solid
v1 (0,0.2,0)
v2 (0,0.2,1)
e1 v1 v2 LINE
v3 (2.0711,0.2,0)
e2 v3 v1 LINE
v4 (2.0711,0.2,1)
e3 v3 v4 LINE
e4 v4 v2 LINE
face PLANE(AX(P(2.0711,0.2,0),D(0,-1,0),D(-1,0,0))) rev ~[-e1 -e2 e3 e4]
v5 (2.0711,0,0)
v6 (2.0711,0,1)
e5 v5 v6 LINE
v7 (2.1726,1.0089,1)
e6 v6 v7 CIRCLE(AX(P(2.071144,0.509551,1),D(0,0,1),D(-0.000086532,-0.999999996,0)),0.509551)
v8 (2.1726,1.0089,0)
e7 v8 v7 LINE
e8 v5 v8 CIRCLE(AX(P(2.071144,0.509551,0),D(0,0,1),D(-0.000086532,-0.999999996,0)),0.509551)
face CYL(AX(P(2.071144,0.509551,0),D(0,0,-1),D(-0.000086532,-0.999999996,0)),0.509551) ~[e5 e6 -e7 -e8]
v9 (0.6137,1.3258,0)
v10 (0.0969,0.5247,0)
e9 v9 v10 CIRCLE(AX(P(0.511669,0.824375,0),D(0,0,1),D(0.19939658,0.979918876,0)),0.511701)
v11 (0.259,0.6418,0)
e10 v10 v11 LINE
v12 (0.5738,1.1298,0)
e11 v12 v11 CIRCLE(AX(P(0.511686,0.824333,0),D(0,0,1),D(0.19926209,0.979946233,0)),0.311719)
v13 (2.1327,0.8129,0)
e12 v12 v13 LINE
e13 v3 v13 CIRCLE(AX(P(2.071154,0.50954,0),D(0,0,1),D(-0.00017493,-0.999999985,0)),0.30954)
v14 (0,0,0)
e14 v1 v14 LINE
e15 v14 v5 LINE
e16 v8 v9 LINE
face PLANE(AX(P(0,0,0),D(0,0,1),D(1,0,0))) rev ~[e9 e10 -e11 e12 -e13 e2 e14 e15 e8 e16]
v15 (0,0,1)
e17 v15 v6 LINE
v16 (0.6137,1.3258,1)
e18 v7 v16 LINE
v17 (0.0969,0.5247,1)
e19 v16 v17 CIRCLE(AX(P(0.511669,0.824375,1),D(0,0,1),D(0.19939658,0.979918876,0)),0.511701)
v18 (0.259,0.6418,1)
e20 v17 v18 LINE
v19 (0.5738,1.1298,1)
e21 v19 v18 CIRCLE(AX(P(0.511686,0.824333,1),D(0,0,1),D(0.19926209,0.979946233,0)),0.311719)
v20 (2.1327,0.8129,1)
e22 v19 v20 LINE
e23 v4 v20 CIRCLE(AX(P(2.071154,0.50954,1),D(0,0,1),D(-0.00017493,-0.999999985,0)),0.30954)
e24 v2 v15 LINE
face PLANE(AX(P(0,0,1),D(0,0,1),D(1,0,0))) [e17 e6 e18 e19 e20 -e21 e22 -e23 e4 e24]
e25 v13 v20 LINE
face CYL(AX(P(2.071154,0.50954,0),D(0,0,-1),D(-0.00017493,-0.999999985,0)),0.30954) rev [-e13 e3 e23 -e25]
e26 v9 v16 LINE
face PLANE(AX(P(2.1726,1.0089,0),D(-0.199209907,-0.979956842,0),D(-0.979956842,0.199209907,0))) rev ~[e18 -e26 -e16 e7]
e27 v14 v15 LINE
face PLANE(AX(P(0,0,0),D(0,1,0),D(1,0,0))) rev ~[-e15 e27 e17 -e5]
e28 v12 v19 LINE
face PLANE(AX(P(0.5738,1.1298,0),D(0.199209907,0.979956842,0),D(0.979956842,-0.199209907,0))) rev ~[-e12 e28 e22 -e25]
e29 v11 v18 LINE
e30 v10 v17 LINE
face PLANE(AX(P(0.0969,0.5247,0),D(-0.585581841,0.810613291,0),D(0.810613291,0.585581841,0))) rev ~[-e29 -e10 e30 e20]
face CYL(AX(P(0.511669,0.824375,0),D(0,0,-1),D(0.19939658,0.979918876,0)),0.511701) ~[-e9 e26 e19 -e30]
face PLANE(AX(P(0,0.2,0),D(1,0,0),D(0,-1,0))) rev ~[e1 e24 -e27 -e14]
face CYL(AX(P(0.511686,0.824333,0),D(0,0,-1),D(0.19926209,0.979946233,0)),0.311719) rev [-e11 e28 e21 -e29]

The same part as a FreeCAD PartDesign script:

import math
import FreeCAD as App
import Part
import Sketcher
from FreeCAD import Vector
Q = App.Units.Quantity

doc = App.newDocument("Part")
body = doc.addObject("PartDesign::Body", "Body")

# Sketch on XY plane
sketch1 = body.newObject("Sketcher::SketchObject", "Sketch")
sketch1.AttachmentSupport = (doc.getObject("XY_Plane"), [""])
sketch1.MapMode = "FlatFace"
sketch1.addGeometry([
    Part.LineSegment(Vector(0, 0.2, 0), Vector(0, 0, 0)),  # 0
    Part.LineSegment(Vector(0, 0, 0), Vector(2.07, 0, 0)),  # 1
    Part.ArcOfCircle(Part.Circle(Vector(2.07, 0.51, 0), Vector(0, 0, 1), 0.51), math.radians(-90), math.radians(79)),  # 2
    Part.LineSegment(Vector(2.17, 1.01, 0), Vector(0.61, 1.33, 0)),  # 3
    Part.ArcOfCircle(Part.Circle(Vector(0.51, 0.82, 0), Vector(0, 0, 1), 0.51), math.radians(79), math.radians(216)),  # 4
    Part.LineSegment(Vector(0.1, 0.52, 0), Vector(0.26, 0.64, 0)),  # 5
    Part.ArcOfCircle(Part.Circle(Vector(0.51, 0.82, 0), Vector(0, 0, 1), 0.31), math.radians(79), math.radians(216)),  # 6
    Part.LineSegment(Vector(0.57, 1.13, 0), Vector(2.13, 0.81, 0)),  # 7
    Part.ArcOfCircle(Part.Circle(Vector(2.07, 0.51, 0), Vector(0, 0, 1), 0.31), math.radians(-90), math.radians(79)),  # 8
    Part.LineSegment(Vector(2.07, 0.2, 0), Vector(0, 0.2, 0)),  # 9
], False)
sketch1.addConstraint([
    Sketcher.Constraint("Coincident", 0, 2, 1, 1),
    Sketcher.Constraint("Tangent", 1, 2, 2, 1),
    Sketcher.Constraint("Tangent", 2, 2, 3, 1),
    Sketcher.Constraint("Tangent", 3, 2, 4, 1),
    Sketcher.Constraint("Coincident", 4, 2, 5, 1),
    Sketcher.Constraint("Coincident", 5, 2, 6, 2),
    Sketcher.Constraint("Tangent", 6, 1, 7, 1),
    Sketcher.Constraint("Tangent", 7, 2, 8, 2),
    Sketcher.Constraint("Tangent", 8, 1, 9, 1),
    Sketcher.Constraint("Coincident", 9, 2, 0, 1),
    Sketcher.Constraint("Vertical", 0),
    Sketcher.Constraint("Horizontal", 1),
    Sketcher.Constraint("Horizontal", 9),
    Sketcher.Constraint("Coincident", 0, 2, -1, 1),
    Sketcher.Constraint("Coincident", 6, 3, 4, 3),
    Sketcher.Constraint("Coincident", 8, 3, 2, 3),
    Sketcher.Constraint("Parallel", 3, 7),
    Sketcher.Constraint("DistanceY", 0, 2, 0, 1, 0.2),
    Sketcher.Constraint("Angle", 3, Q("168.5092 deg")),
    Sketcher.Constraint("Radius", 2, 0.5096),
    Sketcher.Constraint("Radius", 4, 0.5118),
    Sketcher.Constraint("DistanceX", 1, 1, 1, 2, 2.071),
    Sketcher.Constraint("DistanceX", -1, 1, 5, 2, 0.259),
    Sketcher.Constraint("DistanceX", 4, 3, 2, 2, 1.661),
    Sketcher.Constraint("DistanceY", 2, 3, 4, 2, 0.015),
])
pad1 = body.newObject("PartDesign::Pad", "Pad")
pad1.Profile = sketch1
pad1.Length = 1

doc.recompute()
